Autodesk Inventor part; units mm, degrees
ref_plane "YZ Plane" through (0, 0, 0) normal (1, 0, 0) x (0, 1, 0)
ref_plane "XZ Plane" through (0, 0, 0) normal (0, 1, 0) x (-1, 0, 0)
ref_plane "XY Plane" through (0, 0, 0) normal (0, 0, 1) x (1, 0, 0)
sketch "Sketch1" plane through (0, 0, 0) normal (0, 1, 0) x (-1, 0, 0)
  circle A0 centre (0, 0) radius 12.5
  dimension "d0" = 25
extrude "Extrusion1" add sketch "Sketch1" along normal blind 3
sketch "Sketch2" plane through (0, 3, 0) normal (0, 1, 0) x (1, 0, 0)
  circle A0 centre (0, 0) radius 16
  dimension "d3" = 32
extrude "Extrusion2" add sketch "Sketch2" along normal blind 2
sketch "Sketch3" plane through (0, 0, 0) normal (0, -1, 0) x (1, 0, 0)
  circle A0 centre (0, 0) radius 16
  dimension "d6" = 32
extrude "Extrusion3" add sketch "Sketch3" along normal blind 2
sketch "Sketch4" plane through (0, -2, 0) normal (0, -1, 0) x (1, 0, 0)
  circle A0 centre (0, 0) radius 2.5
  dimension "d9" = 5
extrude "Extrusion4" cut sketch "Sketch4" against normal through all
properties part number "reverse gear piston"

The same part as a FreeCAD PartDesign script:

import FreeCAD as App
import Part
import Sketcher

doc = App.newDocument("Part")
params = doc.addObject("Spreadsheet::Sheet", "Params")
for row, (alias, value) in enumerate([
    ("sketch1_diameter", "25 mm"),
    ("pad1_length", "3 mm"),
    ("sketch2_diameter", "32 mm"),
    ("pad2_length", "2 mm"),
    ("sketch3_diameter", "32 mm"),
    ("pad3_length", "2 mm"),
    ("sketch4_diameter", "5 mm"),
], start=1):
    params.set(f"A{row}", alias)
    params.set(f"B{row}", "=" + value)
    params.setAlias(f"B{row}", alias)

body = doc.addObject("PartDesign::Body", "Body")

sketch1 = doc.addObject("Sketcher::SketchObject", "Sketch")
body.addObject(sketch1)
sketch1.AttachmentSupport = (doc.XZ_Plane, [""])
sketch1.MapMode = "FlatFace"
sketch1.addGeometry(Part.Circle(App.Vector(0, 0, 0), App.Vector(0, 0, 1), 12), False)
sketch1.addConstraint([
    Sketcher.Constraint("Coincident", 0, 3, -1, 1),
    Sketcher.Constraint("Diameter", 0, 25.0),
])
sketch1.setExpression("Constraints[1]", "Params.sketch1_diameter")
pad1 = doc.addObject("PartDesign::Pad", "Pad")
body.addObject(pad1)
pad1.Profile = sketch1
pad1.setExpression("Length", "Params.pad1_length")
pad1.Reversed = True

sketch2 = doc.addObject("Sketcher::SketchObject", "Sketch001")
body.addObject(sketch2)
sketch2.AttachmentSupport = (doc.XZ_Plane, [""])
sketch2.MapMode = "FlatFace"
sketch2.AttachmentOffset = App.Placement(App.Vector(0, 0, -3), App.Rotation())
sketch2.addGeometry(Part.Circle(App.Vector(0, 0, 0), App.Vector(0, 0, 1), 16), False)
sketch2.addConstraint([
    Sketcher.Constraint("Coincident", 0, 3, -1, 1),
    Sketcher.Constraint("Diameter", 0, 32.0),
])
sketch2.setExpression("Constraints[1]", "Params.sketch2_diameter")
pad2 = doc.addObject("PartDesign::Pad", "Pad001")
body.addObject(pad2)
pad2.Profile = sketch2
pad2.setExpression("Length", "Params.pad2_length")
pad2.Reversed = True

sketch3 = doc.addObject("Sketcher::SketchObject", "Sketch002")
body.addObject(sketch3)
sketch3.AttachmentSupport = (doc.XZ_Plane, [""])
sketch3.MapMode = "FlatFace"
sketch3.addGeometry(Part.Circle(App.Vector(0, 0, 0), App.Vector(0, 0, 1), 16), False)
sketch3.addConstraint([
    Sketcher.Constraint("Coincident", 0, 3, -1, 1),
    Sketcher.Constraint("Diameter", 0, 32.0),
])
sketch3.setExpression("Constraints[1]", "Params.sketch3_diameter")
pad3 = doc.addObject("PartDesign::Pad", "Pad002")
body.addObject(pad3)
pad3.Profile = sketch3
pad3.setExpression("Length", "Params.pad3_length")

sketch4 = doc.addObject("Sketcher::SketchObject", "Sketch003")
body.addObject(sketch4)
sketch4.AttachmentSupport = (doc.XZ_Plane, [""])
sketch4.MapMode = "FlatFace"
sketch4.AttachmentOffset = App.Placement(App.Vector(0, 0, 2), App.Rotation())
sketch4.addGeometry(Part.Circle(App.Vector(0, 0, 0), App.Vector(0, 0, 1), 2.5), False)
sketch4.addConstraint([
    Sketcher.Constraint("Coincident", 0, 3, -1, 1),
    Sketcher.Constraint("Diameter", 0, 5.0),
])
sketch4.setExpression("Constraints[1]", "Params.sketch4_diameter")
pocket1 = doc.addObject("PartDesign::Pocket", "Pocket")
body.addObject(pocket1)
pocket1.Profile = sketch4
pocket1.Type = "ThroughAll"

doc.recompute()
